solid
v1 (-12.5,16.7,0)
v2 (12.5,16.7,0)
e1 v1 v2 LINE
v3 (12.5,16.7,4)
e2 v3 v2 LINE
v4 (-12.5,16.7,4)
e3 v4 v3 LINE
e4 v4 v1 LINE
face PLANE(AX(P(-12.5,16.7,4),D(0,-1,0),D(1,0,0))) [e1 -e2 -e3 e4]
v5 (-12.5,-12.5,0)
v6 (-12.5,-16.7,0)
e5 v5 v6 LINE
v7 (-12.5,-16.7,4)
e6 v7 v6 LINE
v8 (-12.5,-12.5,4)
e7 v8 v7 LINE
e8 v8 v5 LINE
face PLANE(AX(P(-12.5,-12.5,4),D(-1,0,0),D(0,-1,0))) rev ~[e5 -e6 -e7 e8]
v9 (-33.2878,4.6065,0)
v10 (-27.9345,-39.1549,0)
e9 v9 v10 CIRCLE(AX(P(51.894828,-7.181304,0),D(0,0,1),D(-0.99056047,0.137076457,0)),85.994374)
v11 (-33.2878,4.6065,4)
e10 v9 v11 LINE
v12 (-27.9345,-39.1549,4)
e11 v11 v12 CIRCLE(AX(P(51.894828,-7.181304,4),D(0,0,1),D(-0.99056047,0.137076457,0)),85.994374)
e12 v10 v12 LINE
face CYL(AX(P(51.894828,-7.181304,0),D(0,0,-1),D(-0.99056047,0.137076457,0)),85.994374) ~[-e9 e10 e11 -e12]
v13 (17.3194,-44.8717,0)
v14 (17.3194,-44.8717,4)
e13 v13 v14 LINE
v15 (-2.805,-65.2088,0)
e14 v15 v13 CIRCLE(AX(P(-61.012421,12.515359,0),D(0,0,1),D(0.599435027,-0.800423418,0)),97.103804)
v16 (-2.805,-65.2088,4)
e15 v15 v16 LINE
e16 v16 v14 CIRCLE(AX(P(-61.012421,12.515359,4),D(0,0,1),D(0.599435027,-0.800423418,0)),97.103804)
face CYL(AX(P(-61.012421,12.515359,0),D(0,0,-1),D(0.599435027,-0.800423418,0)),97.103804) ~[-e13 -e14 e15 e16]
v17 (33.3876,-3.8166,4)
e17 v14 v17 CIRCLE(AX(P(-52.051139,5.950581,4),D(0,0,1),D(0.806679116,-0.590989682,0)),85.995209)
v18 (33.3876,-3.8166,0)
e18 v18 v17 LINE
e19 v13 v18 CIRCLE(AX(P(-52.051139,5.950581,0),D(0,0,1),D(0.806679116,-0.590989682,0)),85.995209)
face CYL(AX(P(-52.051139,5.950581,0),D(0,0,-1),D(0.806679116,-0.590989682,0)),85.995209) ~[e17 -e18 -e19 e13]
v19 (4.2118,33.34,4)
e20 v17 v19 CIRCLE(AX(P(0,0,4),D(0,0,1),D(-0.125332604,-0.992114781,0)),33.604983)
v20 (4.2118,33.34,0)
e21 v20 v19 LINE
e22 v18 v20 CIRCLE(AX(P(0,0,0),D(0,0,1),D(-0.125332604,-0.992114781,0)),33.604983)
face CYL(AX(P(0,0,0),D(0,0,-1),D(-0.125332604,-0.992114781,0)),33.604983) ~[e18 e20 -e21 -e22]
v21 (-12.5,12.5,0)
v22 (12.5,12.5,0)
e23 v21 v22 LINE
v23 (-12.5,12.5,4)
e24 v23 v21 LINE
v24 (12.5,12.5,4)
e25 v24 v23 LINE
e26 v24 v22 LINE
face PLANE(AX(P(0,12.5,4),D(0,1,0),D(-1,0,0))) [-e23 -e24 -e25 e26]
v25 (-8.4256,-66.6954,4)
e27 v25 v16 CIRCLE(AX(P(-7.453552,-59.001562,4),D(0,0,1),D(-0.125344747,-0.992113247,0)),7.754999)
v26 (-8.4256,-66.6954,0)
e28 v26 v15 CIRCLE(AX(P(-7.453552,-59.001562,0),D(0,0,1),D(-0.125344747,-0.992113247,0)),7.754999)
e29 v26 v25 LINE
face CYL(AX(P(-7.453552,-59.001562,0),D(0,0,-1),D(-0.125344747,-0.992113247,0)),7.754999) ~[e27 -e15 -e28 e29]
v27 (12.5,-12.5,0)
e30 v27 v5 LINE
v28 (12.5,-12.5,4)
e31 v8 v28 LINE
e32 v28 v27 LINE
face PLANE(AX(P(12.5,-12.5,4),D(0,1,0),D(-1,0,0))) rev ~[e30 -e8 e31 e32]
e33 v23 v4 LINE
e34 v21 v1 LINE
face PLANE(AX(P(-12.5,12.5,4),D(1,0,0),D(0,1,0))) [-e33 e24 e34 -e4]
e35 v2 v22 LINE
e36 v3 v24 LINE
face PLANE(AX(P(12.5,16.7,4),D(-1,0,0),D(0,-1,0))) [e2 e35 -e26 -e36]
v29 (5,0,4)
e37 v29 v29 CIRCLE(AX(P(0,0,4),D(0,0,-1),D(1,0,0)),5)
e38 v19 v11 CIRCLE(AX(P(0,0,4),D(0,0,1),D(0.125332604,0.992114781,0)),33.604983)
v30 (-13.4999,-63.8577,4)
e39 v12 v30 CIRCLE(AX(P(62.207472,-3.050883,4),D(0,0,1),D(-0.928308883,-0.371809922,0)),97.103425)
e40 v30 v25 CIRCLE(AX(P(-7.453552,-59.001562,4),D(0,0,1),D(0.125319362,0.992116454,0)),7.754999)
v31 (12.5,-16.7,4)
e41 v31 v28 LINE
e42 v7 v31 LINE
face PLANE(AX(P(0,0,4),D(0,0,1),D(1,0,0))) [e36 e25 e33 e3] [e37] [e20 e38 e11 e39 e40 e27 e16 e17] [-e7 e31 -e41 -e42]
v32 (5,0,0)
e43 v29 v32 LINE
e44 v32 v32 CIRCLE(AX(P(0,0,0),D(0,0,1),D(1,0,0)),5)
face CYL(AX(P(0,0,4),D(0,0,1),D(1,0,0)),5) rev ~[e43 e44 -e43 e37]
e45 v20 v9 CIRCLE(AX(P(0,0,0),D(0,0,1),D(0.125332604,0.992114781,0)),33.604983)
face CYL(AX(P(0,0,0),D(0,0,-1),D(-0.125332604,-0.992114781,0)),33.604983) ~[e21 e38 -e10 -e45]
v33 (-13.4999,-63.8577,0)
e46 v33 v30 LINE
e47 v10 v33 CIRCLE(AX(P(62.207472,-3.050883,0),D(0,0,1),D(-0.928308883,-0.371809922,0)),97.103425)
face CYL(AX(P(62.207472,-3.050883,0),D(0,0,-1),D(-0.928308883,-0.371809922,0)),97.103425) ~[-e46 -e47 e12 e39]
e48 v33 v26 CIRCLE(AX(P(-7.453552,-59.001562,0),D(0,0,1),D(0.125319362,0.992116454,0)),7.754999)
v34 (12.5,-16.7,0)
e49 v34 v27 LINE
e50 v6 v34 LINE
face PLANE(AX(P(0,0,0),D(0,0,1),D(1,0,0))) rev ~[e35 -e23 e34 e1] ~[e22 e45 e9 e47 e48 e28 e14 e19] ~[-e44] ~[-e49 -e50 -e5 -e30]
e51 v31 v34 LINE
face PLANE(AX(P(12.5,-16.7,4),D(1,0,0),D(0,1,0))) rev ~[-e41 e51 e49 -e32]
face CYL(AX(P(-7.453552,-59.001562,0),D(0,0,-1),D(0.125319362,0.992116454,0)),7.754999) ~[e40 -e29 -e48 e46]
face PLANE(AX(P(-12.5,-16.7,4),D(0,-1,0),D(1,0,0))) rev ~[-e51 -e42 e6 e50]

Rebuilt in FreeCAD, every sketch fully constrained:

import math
import FreeCAD as App
import Part
import Sketcher
from FreeCAD import Vector

doc = App.newDocument("Part")
body = doc.addObject("PartDesign::Body", "Body")

sketch1 = body.newObject("Sketcher::SketchObject", "Sketch")
sketch1.AttachmentSupport = (doc.getObject("XY_Plane"), [""])
sketch1.MapMode = "FlatFace"
sketch1.addGeometry(Part.ArcOfCircle(Part.Circle(Vector(0, 0, 0), Vector(0, 0, 1), 33.604983), math.radians(-6.521283), math.radians(172.121218)), False)
sketch1.addGeometry(Part.ArcOfCircle(Part.Circle(Vector(51.8943, -7.1813, 0), Vector(0, 0, 1), 85.993851), math.radians(172.121246), math.radians(201.827441)), False)
sketch1.addGeometry(Part.ArcOfCircle(Part.Circle(Vector(62.207472, -3.050883, 0), Vector(0, 0, 1), 97.103425), math.radians(-158.172717), math.radians(-141.229188)), False)
sketch1.addGeometry(Part.ArcOfCircle(Part.Circle(Vector(-7.4536, -59.0015, 0), Vector(0, 0, 1), 7.755055), math.radians(-141.229653), math.radians(-97.200252)), False)
sketch1.addGeometry(Part.ArcOfCircle(Part.Circle(Vector(-7.4536, -59.0015, 0), Vector(0, 0, 1), 7.755055), math.radians(-97.200252), math.radians(-53.170738)), False)
sketch1.addGeometry(Part.ArcOfCircle(Part.Circle(Vector(-61.012421, 12.515359, 0), Vector(0, 0, 1), 97.103804), math.radians(-53.170555), math.radians(-36.22706)), False)
sketch1.addGeometry(Part.ArcOfCircle(Part.Circle(Vector(-52.051139, 5.950581, 0), Vector(0, 0, 1), 85.995209), math.radians(-36.227271), math.radians(-6.521625)), False)
sketch1.addConstraint(Sketcher.Constraint("Coincident", 0, 2, 1, 1))
sketch1.addConstraint(Sketcher.Constraint("Coincident", 1, 2, 2, 1))
sketch1.addConstraint(Sketcher.Constraint("Coincident", 2, 2, 3, 1))
sketch1.addConstraint(Sketcher.Constraint("Coincident", 3, 2, 4, 1))
sketch1.addConstraint(Sketcher.Constraint("Coincident", 4, 2, 5, 1))
sketch1.addConstraint(Sketcher.Constraint("Coincident", 5, 2, 6, 1))
sketch1.addConstraint(Sketcher.Constraint("Coincident", 6, 2, 0, 1))
sketch1.addConstraint(Sketcher.Constraint("Coincident", 0, 3, -1, 1))
sketch1.addConstraint(Sketcher.Constraint("Coincident", 4, 3, 3, 3))
sketch1.addConstraint(Sketcher.Constraint("Radius", 0, 33.605))
sketch1.addConstraint(Sketcher.Constraint("Radius", 3, 7.755))
sketch1.addConstraint(Sketcher.Constraint("DistanceX", 2, 2, -1, 1, 13.5))
sketch1.addConstraint(Sketcher.Constraint("Radius", 1, 85.9939))
sketch1.addConstraint(Sketcher.Constraint("Radius", 2, 97.1034))
sketch1.addConstraint(Sketcher.Constraint("Radius", 5, 97.1038))
sketch1.addConstraint(Sketcher.Constraint("Radius", 6, 85.9952))
sketch1.addConstraint(Sketcher.Constraint("DistanceX", 5, 3, 2, 3, 123.22))
sketch1.addConstraint(Sketcher.Constraint("DistanceY", 2, 3, -1, 1, 3.051))
sketch1.addConstraint(Sketcher.Constraint("DistanceY", 1, 2, -1, 1, 39.155))
sketch1.addConstraint(Sketcher.Constraint("DistanceX", 4, 2, -1, 1, 2.805))
sketch1.addConstraint(Sketcher.Constraint("DistanceX", 3, 3, 1, 3, 59.348))
sketch1.addConstraint(Sketcher.Constraint("DistanceX", 3, 3, 2, 3, 69.661))
sketch1.addConstraint(Sketcher.Constraint("DistanceY", 0, 2, 6, 3, 1.344))
sketch1.addConstraint(Sketcher.Constraint("DistanceX", 3, 2, 3, 3, 0.972))
sketch1.addConstraint(Sketcher.Constraint("DistanceX", 3, 3, 5, 2, 24.773))
sketch1.addConstraint(Sketcher.Constraint("DistanceY", 5, 2, 6, 2, 41.055))
pad1 = body.newObject("PartDesign::Pad", "Pad")
pad1.Profile = sketch1
pad1.Length = 4

sketch2 = body.newObject("Sketcher::SketchObject", "Sketch001")
sketch2.AttachmentSupport = (doc.getObject("XY_Plane"), [""])
sketch2.MapMode = "FlatFace"
sketch2.AttachmentOffset = App.Placement(Vector(0, 0, 4), App.Rotation())
sketch2.addGeometry(Part.Circle(Vector(0, 0, 0), Vector(0, 0, 1), 5), False)
sketch2.addGeometry(Part.LineSegment(Vector(-12.5, 12.5, 0), Vector(12.5, 12.5, 0)), False)
sketch2.addGeometry(Part.LineSegment(Vector(12.5, 12.5, 0), Vector(12.5, 16.7, 0)), False)
sketch2.addGeometry(Part.LineSegment(Vector(12.5, 16.7, 0), Vector(-12.5, 16.7, 0)), False)
sketch2.addGeometry(Part.LineSegment(Vector(-12.5, 16.7, 0), Vector(-12.5, 12.5, 0)), False)
sketch2.addGeometry(Part.LineSegment(Vector(12.5, -12.5, 0), Vector(-12.5, -12.5, 0)), False)
sketch2.addGeometry(Part.LineSegment(Vector(-12.5, -12.5, 0), Vector(-12.5, -16.7, 0)), False)
sketch2.addGeometry(Part.LineSegment(Vector(-12.5, -16.7, 0), Vector(12.5, -16.7, 0)), False)
sketch2.addGeometry(Part.LineSegment(Vector(12.5, -16.7, 0), Vector(12.5, -12.5, 0)), False)
sketch2.addConstraint(Sketcher.Constraint("Coincident", 1, 2, 2, 1))
sketch2.addConstraint(Sketcher.Constraint("Coincident", 2, 2, 3, 1))
sketch2.addConstraint(Sketcher.Constraint("Coincident", 3, 2, 4, 1))
sketch2.addConstraint(Sketcher.Constraint("Coincident", 4, 2, 1, 1))
sketch2.addConstraint(Sketcher.Constraint("Coincident", 5, 2, 6, 1))
sketch2.addConstraint(Sketcher.Constraint("Coincident", 6, 2, 7, 1))
sketch2.addConstraint(Sketcher.Constraint("Coincident", 7, 2, 8, 1))
sketch2.addConstraint(Sketcher.Constraint("Coincident", 8, 2, 5, 1))
sketch2.addConstraint(Sketcher.Constraint("Horizontal", 1))
sketch2.addConstraint(Sketcher.Constraint("Vertical", 2))
sketch2.addConstraint(Sketcher.Constraint("Horizontal", 3))
sketch2.addConstraint(Sketcher.Constraint("Vertical", 4))
sketch2.addConstraint(Sketcher.Constraint("Horizontal", 5))
sketch2.addConstraint(Sketcher.Constraint("Vertical", 6))
sketch2.addConstraint(Sketcher.Constraint("Horizontal", 7))
sketch2.addConstraint(Sketcher.Constraint("Vertical", 8))
sketch2.addConstraint(Sketcher.Constraint("Coincident", 0, 3, -1, 1))
sketch2.addConstraint(Sketcher.Constraint("Symmetric", 1, 2, 5, 2, -1, 1))
sketch2.addConstraint(Sketcher.Constraint("Symmetric", 3, 2, 7, 2, -1, 1))
sketch2.addConstraint(Sketcher.Constraint("Vertical", 4, 2, 5, 2))
sketch2.addConstraint(Sketcher.Constraint("Diameter", 0, 10.0))
sketch2.addConstraint(Sketcher.Constraint("DistanceX", 1, 1, 1, 2, 25.0))
sketch2.addConstraint(Sketcher.Constraint("DistanceY", 2, 1, 2, 2, 4.2))
sketch2.addConstraint(Sketcher.Constraint("DistanceY", 5, 2, 4, 2, 25.0))
pocket1 = body.newObject("PartDesign::Pocket", "Pocket")
pocket1.Profile = sketch2
pocket1.Length = 4

doc.recompute()
